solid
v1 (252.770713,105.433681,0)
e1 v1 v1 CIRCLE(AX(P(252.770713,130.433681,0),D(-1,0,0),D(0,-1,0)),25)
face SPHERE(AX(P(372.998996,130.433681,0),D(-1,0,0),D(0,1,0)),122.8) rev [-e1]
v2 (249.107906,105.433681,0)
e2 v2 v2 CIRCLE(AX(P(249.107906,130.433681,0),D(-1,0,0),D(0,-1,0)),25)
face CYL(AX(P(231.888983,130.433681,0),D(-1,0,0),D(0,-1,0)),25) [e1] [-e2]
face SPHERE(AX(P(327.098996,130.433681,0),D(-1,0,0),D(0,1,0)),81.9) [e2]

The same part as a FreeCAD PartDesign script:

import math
import FreeCAD as App
import Part
import Sketcher

V = App.Vector
Q = App.Units.Quantity

doc = App.newDocument("Part")
params = doc.addObject("Spreadsheet::Sheet", "Params")
for row, (alias, value) in enumerate([
    ("sketch1_radius", "81.9 mm"),
    ("sketch1_radius2", "122.8 mm"),
    ("sketch1_width", "5 mm"),
    ("revolution_angle", "360 deg"),
], start=1):
    params.set(f"A{row}", alias)
    params.set(f"B{row}", "=" + value)
    params.setAlias(f"B{row}", alias)

body = doc.addObject("PartDesign::Body", "Body")

# Sketch on XY plane
sketch1 = body.newObject("Sketcher::SketchObject", "Sketch")
sketch1.AttachmentSupport = (doc.getObject("XY_Plane"), [""])
sketch1.MapMode = "FlatFace"
sketch1.addGeometry([
    Part.LineSegment(V(252.770713, 155.433681, 0), V(249.107906, 155.433681, 0)),
    Part.ArcOfCircle(Part.Circle(V(327.098996, 130.433681, 0), V(0, 0, 1), 81.9), math.radians(162.226777), math.radians(180)),
    Part.LineSegment(V(245.198996, 130.433681, 0), V(250.198996, 130.433681, 0)),
    Part.ArcOfCircle(Part.Circle(V(372.998996, 130.433681, 0), V(0, 0, 1), 122.8), math.radians(168.253435), math.radians(180)),
], False)
sketch1.addGeometry(Part.LineSegment(V(245.198996, 130.433681, 0), V(372.998996, 130.433681, 0)), True)  # axis
sketch1.addConstraint([
    Sketcher.Constraint("Coincident", 0, 2, 1, 1),
    Sketcher.Constraint("Coincident", 1, 2, 2, 1),
    Sketcher.Constraint("Coincident", 2, 2, 3, 2),
    Sketcher.Constraint("Coincident", 3, 1, 0, 1),
    Sketcher.Constraint("Horizontal", 0),
    Sketcher.Constraint("Horizontal", 2),
    Sketcher.Constraint("Horizontal", 4),
    Sketcher.Constraint("Coincident", 4, 1, 1, 2),
    Sketcher.Constraint("Coincident", 4, 2, 3, 3),
    Sketcher.Constraint("Horizontal", 1, 3, 3, 3),
    Sketcher.Constraint("Radius", 1, Q("81.9 mm")),
    Sketcher.Constraint("Radius", 3, Q("122.8 mm")),
    Sketcher.Constraint("DistanceX", 2, 1, 2, 2, Q("5 mm")),
    Sketcher.Constraint("DistanceY", 1, 3, 0, 2, Q("25 mm")),
    Sketcher.Constraint("DistanceY", -1, 1, 1, 3, Q("130.433681 mm")),
    Sketcher.Constraint("DistanceX", -1, 1, 1, 3, Q("327.098996 mm")),
])
sketch1.setExpression("Constraints[10]", "Params.sketch1_radius")
sketch1.setExpression("Constraints[11]", "Params.sketch1_radius2")
sketch1.setExpression("Constraints[12]", "Params.sketch1_width")
revolution = body.newObject("PartDesign::Revolution", "Revolution")
revolution.Profile = sketch1
revolution.ReferenceAxis = (sketch1, ["Axis0"])
revolution.setExpression("Angle", "Params.revolution_angle")

doc.recompute()
